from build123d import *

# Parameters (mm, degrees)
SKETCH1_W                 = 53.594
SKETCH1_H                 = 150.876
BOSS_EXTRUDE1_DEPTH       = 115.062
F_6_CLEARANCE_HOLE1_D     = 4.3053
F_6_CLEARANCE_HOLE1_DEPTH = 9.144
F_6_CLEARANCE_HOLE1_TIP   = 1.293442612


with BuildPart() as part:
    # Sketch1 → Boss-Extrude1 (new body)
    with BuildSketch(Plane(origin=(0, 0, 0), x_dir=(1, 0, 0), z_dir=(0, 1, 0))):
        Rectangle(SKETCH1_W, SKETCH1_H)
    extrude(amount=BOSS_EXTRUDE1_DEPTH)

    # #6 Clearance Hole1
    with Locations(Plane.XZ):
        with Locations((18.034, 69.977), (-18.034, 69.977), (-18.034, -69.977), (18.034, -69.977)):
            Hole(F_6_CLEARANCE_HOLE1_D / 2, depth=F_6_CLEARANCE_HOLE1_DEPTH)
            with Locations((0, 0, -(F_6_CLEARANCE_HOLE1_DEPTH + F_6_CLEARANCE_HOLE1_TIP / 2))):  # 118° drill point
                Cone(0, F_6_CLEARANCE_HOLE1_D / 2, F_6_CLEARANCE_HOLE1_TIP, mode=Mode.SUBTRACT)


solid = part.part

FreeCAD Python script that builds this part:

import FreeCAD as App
import Part
import Sketcher

V = App.Vector
Q = App.Units.Quantity

doc = App.newDocument("Part")
body = doc.addObject("PartDesign::Body", "Body")

# Sketch on XZ plane
sketch1 = body.newObject("Sketcher::SketchObject", "Sketch")
sketch1.AttachmentSupport = (doc.getObject("XZ_Plane"), [""])
sketch1.MapMode = "FlatFace"
sketch1.addGeometry([
    Part.LineSegment(V(-26.797, -75.438, 0), V(-26.797, 75.438, 0)),
    Part.LineSegment(V(-26.797, 75.438, 0), V(26.797, 75.438, 0)),
    Part.LineSegment(V(26.797, 75.438, 0), V(26.797, -75.438, 0)),
    Part.LineSegment(V(26.797, -75.438, 0), V(-26.797, -75.438, 0)),
], False)
sketch1.addConstraint([
    Sketcher.Constraint("Coincident", 0, 2, 1, 1),
    Sketcher.Constraint("Coincident", 1, 2, 2, 1),
    Sketcher.Constraint("Coincident", 2, 2, 3, 1),
    Sketcher.Constraint("Coincident", 3, 2, 0, 1),
    Sketcher.Constraint("Vertical", 0),
    Sketcher.Constraint("Horizontal", 1),
    Sketcher.Constraint("Vertical", 2),
    Sketcher.Constraint("Horizontal", 3),
    Sketcher.Constraint("Symmetric", 0, 2, 2, 2, -1, 1),
    Sketcher.Constraint("DistanceX", 1, 1, 1, 2, Q("2.11 in")),
    Sketcher.Constraint("DistanceY", 0, 1, 0, 2, Q("5.94 in")),
])
pad1 = body.newObject("PartDesign::Pad", "Pad")
pad1.Profile = sketch1
pad1.Length = Q("4.53 in")
pad1.Reversed = True

# Sketch on XZ plane
sketch2 = body.newObject("Sketcher::SketchObject", "Sketch001")
sketch2.AttachmentSupport = (doc.getObject("XZ_Plane"), [""])
sketch2.MapMode = "FlatFace"
sketch2.addGeometry([
    Part.Circle(V(18.034, 69.977, 0), V(0, 0, 1), 2.15265),
    Part.Circle(V(-18.034, 69.977, 0), V(0, 0, 1), 2.15265),
    Part.Circle(V(-18.034, -69.977, 0), V(0, 0, 1), 2.15265),
    Part.Circle(V(18.034, -69.977, 0), V(0, 0, 1), 2.15265),
], False)
sketch2.addConstraint([
    Sketcher.Constraint("Equal", 0, 1),
    Sketcher.Constraint("Equal", 1, 2),
    Sketcher.Constraint("Equal", 2, 3),
    Sketcher.Constraint("Symmetric", 0, 3, 2, 3, -1, 1),
    Sketcher.Constraint("Symmetric", 1, 3, 3, 3, -1, 1),
    Sketcher.Constraint("Symmetric", 0, 3, 1, 3, -2),
    Sketcher.Constraint("Diameter", 0, Q("0.1695 in")),
    Sketcher.Constraint("DistanceX", -1, 1, 0, 3, Q("0.71 in")),
    Sketcher.Constraint("DistanceY", 2, 3, 1, 3, Q("5.51 in")),
])
doc.recompute()
hole = body.newObject("PartDesign::Hole", "Hole")
hole.Profile = sketch2
hole.ThreadType = "None"
hole.Diameter = Q("0.1695 in")
hole.DepthType = "Dimension"
hole.Depth = Q("0.36 in")
hole.DrillPoint = "Angled"
hole.DrillPointAngle = 118

doc.recompute()
